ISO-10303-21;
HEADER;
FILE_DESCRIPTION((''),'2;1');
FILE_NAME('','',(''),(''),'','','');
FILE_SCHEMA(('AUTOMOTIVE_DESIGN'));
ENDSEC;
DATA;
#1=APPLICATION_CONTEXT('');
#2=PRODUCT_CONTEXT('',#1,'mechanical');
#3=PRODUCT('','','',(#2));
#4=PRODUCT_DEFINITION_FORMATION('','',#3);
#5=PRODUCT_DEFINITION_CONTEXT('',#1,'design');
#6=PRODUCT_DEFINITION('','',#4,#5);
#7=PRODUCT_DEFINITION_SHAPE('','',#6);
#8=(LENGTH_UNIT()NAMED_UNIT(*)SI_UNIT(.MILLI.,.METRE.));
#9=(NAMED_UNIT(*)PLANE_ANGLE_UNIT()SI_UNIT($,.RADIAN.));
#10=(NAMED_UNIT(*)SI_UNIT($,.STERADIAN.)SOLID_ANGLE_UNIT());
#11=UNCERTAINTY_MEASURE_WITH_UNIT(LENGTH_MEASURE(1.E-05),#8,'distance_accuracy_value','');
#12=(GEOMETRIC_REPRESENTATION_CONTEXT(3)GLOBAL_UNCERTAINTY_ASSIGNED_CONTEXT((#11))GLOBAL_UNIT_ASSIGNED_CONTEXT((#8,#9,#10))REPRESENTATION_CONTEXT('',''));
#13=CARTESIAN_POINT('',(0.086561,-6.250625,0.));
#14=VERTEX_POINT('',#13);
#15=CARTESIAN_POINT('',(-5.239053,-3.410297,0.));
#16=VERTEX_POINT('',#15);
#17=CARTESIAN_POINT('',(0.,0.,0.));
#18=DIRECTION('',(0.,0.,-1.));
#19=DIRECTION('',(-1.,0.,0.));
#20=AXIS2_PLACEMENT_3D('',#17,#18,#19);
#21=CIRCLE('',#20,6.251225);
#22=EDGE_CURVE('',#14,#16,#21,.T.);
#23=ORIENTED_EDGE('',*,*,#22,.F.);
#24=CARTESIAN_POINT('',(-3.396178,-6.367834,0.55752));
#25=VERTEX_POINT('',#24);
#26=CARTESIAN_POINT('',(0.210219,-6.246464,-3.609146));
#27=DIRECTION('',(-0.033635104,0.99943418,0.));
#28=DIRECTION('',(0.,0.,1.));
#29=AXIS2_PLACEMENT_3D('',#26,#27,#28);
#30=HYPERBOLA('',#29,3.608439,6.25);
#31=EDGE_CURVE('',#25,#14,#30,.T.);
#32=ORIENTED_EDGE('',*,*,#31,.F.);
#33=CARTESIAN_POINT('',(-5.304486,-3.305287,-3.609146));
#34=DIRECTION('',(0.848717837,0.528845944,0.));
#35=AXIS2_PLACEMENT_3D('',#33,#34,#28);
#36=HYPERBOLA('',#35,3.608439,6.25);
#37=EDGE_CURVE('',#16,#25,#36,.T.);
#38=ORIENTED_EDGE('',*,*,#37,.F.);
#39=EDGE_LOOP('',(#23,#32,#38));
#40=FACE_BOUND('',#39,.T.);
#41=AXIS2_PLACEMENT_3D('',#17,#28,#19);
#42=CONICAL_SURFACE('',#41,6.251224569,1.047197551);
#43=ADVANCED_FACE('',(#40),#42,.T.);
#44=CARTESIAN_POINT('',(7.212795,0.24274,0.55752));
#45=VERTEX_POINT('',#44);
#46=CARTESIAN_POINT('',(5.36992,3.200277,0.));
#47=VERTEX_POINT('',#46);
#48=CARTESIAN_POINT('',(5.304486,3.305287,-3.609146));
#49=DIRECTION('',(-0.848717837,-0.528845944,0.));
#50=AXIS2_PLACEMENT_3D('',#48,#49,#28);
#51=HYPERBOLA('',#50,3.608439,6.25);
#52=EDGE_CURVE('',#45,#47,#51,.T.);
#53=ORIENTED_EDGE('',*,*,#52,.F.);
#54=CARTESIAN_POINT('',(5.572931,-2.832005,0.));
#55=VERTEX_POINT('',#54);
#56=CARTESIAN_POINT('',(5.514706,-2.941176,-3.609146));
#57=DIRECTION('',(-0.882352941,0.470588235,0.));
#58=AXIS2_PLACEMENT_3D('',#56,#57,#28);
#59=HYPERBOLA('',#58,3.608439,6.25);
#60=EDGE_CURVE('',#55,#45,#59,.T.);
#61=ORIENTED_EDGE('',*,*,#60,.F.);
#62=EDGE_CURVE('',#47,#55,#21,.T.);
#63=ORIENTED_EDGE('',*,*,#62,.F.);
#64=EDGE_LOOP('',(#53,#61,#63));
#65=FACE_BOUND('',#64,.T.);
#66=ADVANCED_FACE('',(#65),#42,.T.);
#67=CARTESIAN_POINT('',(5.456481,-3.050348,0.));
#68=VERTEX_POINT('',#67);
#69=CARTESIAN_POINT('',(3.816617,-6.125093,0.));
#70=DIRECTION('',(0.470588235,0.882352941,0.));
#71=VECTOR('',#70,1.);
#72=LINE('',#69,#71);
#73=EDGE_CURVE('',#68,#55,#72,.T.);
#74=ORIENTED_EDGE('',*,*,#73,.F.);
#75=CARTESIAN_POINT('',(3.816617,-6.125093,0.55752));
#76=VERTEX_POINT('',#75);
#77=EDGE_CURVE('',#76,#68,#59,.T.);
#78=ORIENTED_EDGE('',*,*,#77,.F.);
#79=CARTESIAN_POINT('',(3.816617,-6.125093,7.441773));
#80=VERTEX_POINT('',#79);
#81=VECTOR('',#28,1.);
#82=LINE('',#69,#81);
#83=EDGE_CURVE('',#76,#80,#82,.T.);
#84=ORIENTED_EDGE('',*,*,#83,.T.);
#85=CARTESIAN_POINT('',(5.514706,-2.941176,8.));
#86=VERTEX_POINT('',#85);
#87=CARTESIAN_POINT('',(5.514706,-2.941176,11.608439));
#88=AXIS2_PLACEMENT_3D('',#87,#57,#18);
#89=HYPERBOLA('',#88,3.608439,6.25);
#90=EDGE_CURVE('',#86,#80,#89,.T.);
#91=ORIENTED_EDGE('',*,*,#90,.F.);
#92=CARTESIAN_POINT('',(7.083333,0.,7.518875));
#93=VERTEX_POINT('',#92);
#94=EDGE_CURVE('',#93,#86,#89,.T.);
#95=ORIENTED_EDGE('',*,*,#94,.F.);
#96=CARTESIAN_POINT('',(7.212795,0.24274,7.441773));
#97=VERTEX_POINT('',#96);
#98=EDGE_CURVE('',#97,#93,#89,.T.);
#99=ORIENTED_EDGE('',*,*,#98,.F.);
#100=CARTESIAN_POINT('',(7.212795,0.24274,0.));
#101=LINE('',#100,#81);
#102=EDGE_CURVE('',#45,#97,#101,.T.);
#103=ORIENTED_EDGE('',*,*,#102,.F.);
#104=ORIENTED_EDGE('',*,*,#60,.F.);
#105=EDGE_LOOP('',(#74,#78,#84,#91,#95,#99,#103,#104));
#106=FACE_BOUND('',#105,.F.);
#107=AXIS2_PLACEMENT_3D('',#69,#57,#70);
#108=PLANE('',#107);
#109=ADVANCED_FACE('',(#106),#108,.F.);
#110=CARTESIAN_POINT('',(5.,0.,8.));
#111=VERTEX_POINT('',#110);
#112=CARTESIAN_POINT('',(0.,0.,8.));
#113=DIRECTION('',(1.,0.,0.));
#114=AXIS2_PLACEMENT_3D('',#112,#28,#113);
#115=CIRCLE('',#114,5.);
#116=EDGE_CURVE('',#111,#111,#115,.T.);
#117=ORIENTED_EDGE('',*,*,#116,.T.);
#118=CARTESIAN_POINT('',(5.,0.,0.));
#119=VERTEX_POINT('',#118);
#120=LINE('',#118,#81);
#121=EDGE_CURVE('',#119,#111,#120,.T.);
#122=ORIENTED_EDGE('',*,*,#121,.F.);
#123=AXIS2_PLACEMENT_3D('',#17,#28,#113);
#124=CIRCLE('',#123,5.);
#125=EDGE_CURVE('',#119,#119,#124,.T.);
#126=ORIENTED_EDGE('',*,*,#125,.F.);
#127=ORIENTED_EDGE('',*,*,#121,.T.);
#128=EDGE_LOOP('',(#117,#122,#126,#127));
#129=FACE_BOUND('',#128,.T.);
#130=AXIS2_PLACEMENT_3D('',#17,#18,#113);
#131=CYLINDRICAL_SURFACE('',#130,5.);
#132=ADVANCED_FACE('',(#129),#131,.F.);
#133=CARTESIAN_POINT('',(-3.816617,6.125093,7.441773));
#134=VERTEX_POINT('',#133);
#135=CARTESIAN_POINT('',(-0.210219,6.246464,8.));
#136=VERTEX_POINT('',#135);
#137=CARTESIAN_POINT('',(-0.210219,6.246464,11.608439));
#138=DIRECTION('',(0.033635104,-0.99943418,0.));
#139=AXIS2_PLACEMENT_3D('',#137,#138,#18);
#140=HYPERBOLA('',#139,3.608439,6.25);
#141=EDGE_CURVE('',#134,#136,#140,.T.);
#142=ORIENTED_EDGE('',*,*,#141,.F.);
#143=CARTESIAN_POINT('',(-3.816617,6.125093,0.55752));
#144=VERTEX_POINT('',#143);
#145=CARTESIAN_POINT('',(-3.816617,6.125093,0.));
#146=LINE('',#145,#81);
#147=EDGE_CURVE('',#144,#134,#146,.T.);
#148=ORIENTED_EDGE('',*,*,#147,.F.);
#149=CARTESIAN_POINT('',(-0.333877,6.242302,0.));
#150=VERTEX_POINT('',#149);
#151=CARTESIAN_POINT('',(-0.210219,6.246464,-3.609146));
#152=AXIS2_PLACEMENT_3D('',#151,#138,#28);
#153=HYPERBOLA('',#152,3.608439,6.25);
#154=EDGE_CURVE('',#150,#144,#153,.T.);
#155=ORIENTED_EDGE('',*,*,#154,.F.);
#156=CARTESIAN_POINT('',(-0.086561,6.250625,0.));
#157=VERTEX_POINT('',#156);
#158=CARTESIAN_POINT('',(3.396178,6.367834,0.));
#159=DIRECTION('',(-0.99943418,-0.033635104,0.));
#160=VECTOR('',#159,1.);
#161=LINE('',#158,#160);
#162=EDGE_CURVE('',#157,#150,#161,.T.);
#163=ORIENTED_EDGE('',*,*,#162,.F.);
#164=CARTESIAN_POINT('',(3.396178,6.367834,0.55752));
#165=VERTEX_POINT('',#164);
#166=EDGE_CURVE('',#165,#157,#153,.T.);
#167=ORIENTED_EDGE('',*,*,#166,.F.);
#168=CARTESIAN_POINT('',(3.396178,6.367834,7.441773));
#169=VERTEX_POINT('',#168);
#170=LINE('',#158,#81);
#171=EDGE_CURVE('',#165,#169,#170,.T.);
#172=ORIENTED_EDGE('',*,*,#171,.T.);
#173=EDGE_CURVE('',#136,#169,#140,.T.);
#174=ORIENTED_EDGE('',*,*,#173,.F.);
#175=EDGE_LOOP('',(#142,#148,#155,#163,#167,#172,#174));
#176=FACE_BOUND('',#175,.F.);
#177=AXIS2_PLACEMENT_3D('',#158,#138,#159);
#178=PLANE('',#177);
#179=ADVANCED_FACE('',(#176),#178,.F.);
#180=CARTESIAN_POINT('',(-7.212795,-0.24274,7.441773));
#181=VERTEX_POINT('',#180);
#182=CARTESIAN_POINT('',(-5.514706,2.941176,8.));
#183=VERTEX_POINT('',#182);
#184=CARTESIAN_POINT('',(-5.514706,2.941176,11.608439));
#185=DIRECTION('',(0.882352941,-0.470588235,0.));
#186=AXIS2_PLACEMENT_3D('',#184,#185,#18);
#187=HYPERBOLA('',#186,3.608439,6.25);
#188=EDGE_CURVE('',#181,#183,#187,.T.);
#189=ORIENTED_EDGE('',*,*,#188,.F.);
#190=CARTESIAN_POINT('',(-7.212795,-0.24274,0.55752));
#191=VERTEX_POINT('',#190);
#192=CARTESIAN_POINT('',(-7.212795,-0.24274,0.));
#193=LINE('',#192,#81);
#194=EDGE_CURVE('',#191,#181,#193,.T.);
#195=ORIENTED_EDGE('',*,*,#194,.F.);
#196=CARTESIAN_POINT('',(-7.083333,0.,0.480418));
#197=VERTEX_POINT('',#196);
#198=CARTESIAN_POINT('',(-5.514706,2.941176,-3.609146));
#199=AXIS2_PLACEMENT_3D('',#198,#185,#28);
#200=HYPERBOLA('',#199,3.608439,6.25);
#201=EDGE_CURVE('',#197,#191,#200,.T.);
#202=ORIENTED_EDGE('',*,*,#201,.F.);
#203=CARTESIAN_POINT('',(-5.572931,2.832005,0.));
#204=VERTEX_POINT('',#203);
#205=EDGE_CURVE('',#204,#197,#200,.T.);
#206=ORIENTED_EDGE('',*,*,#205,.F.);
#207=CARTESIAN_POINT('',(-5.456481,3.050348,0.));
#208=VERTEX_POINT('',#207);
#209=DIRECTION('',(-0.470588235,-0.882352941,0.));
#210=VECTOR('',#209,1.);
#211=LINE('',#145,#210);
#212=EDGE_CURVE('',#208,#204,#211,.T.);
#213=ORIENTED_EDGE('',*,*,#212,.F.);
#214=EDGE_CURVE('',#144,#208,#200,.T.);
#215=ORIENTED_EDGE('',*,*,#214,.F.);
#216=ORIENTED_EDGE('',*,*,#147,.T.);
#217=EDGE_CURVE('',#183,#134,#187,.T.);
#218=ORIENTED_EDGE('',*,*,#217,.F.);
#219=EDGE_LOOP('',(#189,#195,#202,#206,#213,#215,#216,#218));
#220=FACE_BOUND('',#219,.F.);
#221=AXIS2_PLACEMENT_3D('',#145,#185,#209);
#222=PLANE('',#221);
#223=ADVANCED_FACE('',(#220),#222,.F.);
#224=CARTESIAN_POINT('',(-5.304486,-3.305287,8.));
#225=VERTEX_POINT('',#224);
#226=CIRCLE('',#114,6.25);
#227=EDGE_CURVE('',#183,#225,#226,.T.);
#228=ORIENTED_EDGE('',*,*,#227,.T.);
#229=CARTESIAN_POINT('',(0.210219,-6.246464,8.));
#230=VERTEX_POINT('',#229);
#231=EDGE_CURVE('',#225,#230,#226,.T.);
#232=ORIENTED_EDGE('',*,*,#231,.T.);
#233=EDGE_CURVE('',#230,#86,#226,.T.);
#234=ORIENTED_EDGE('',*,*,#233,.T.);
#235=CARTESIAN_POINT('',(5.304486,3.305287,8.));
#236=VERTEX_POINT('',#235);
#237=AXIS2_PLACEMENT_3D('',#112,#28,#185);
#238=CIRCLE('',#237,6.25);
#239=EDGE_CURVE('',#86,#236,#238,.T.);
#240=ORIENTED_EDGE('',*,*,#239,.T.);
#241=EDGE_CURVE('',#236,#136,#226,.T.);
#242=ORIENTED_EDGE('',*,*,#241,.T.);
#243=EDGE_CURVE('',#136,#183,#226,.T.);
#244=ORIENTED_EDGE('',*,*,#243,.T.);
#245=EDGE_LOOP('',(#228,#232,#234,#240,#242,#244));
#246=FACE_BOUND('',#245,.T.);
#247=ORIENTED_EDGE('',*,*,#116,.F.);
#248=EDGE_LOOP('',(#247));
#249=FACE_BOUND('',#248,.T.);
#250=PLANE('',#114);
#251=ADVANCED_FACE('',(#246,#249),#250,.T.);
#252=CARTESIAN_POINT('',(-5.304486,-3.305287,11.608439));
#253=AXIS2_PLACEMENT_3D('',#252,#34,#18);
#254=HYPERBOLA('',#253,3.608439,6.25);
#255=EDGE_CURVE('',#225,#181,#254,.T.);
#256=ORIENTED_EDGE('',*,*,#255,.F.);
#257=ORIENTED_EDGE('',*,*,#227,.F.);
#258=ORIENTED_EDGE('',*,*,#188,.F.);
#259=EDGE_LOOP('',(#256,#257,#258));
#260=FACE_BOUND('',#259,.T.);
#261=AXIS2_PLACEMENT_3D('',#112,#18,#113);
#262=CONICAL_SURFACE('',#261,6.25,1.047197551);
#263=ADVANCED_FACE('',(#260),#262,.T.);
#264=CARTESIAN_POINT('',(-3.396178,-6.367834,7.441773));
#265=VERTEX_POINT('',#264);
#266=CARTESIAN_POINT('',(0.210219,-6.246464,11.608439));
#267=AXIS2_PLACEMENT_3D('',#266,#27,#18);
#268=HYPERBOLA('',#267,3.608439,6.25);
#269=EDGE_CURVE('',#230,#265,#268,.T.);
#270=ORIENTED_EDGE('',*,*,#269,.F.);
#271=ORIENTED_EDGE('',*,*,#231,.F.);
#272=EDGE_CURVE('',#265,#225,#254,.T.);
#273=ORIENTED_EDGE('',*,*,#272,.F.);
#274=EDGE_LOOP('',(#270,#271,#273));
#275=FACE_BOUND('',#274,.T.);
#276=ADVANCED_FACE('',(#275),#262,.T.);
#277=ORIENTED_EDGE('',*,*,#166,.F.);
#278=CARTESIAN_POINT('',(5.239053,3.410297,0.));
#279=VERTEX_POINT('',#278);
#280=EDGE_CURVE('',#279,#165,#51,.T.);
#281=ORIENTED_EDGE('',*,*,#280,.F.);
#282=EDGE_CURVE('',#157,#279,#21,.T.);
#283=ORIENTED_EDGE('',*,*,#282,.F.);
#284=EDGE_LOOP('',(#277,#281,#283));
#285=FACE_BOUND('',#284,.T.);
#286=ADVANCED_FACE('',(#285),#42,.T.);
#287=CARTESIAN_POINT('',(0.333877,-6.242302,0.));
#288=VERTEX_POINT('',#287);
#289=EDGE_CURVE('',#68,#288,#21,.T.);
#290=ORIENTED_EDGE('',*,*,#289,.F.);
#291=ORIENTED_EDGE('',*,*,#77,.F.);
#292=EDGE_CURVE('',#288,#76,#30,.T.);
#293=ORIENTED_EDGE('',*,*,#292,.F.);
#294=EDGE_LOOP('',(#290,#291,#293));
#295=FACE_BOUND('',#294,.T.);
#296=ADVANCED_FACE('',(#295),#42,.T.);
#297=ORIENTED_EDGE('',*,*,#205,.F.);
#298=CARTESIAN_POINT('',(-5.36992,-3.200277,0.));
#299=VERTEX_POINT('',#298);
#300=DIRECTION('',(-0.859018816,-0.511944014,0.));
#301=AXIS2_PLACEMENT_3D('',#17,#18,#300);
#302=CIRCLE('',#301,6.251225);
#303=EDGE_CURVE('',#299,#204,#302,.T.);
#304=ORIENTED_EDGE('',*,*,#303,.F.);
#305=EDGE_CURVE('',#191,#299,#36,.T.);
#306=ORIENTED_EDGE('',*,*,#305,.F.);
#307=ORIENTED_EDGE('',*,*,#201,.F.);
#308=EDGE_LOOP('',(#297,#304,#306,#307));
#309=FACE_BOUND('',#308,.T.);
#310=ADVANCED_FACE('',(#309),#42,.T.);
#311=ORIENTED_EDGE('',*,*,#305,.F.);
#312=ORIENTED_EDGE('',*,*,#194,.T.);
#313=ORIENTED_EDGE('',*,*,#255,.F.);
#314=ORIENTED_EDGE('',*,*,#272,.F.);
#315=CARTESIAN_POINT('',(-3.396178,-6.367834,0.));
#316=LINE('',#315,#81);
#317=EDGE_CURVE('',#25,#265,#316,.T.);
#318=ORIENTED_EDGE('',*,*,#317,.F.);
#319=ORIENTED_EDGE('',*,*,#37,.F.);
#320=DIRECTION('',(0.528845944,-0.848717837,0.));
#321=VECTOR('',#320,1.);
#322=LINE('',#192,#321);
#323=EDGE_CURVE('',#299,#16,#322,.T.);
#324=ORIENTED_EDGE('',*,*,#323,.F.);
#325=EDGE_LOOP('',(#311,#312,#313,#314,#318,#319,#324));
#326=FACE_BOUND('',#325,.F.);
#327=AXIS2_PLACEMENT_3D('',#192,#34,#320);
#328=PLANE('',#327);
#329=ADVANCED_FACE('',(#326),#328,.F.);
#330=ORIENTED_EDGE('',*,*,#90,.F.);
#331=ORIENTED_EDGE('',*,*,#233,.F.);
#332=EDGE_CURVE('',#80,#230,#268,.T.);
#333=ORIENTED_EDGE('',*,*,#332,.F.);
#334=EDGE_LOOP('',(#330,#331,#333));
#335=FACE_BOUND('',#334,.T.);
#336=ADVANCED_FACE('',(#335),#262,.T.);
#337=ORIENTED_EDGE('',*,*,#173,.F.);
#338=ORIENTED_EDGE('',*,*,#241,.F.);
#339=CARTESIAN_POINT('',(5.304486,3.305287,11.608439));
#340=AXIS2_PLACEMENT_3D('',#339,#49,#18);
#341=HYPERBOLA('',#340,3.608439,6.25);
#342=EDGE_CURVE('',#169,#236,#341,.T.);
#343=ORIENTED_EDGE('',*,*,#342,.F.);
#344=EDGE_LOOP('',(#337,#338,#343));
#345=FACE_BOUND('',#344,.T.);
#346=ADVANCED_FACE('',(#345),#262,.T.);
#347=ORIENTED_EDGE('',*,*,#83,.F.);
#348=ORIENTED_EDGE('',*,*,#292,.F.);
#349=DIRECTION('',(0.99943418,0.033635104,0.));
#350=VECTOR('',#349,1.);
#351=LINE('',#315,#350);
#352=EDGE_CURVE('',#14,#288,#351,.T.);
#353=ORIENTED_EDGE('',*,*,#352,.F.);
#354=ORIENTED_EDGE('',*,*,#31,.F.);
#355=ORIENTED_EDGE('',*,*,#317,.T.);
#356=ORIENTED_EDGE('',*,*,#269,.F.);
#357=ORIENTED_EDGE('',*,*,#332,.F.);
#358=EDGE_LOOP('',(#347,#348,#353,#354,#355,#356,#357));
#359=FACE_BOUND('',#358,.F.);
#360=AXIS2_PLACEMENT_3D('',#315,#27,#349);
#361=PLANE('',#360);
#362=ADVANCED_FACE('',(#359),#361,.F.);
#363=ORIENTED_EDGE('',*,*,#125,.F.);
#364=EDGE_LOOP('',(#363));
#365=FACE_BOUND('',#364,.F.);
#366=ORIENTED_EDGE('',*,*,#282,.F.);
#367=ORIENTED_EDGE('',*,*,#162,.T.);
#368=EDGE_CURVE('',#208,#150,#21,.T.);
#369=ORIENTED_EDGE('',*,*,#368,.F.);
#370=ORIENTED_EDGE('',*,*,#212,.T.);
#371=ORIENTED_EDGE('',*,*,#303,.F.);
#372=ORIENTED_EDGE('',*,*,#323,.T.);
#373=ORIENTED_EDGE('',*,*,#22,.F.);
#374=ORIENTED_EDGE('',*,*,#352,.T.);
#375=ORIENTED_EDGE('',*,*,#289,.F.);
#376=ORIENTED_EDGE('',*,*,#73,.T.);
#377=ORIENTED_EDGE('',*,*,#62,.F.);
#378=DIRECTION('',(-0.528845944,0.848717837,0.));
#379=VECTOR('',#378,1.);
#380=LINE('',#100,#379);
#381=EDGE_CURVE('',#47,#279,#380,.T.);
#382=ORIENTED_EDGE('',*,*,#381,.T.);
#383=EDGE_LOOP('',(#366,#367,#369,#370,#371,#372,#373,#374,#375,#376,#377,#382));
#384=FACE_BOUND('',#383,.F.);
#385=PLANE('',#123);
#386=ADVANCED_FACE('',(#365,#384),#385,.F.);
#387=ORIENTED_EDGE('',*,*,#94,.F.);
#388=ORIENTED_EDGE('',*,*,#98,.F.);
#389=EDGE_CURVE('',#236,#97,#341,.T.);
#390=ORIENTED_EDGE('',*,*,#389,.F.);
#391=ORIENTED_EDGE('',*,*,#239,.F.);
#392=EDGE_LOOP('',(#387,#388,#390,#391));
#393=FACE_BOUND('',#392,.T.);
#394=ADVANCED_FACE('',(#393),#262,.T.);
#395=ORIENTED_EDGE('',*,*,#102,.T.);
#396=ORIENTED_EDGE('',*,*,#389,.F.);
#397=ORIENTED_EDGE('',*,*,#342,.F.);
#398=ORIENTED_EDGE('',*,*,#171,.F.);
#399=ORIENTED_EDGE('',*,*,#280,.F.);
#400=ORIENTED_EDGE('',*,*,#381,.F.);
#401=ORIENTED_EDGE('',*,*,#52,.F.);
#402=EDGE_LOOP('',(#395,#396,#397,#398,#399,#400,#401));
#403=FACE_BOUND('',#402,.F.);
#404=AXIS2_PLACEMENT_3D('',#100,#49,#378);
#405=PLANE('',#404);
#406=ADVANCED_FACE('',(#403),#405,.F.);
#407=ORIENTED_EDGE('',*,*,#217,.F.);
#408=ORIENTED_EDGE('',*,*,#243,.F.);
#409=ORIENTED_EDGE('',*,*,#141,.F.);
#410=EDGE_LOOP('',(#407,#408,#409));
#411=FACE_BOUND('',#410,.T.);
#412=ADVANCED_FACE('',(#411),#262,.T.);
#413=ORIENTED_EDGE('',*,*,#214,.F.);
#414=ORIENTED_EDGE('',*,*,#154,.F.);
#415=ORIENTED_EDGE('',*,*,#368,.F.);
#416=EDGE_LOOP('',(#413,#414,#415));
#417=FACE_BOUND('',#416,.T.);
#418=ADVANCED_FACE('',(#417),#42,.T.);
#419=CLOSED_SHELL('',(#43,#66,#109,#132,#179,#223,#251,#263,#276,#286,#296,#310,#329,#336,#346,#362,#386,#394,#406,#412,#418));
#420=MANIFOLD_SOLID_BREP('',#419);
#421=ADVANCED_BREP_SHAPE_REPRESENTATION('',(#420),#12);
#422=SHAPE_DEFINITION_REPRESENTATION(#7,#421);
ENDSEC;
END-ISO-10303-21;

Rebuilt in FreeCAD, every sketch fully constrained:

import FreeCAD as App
import Part
import Sketcher

V = App.Vector


def faces_at(feature, points):
    """Names of the faces that lie closest to the given points."""
    faces = feature.Shape.Faces
    near = lambda p: min(range(len(faces)), key=lambda i: faces[i].distToShape(Part.Vertex(*p))[0])
    return sorted({f"Face{near(p) + 1}" for p in points})

doc = App.newDocument("Part")
body = doc.addObject("PartDesign::Body", "Body")

# Sketch on XY plane
sketch1 = body.newObject("Sketcher::SketchObject", "Sketch")
sketch1.AttachmentSupport = (doc.getObject("XY_Plane"), [""])
sketch1.MapMode = "FlatFace"
sketch1.addGeometry([
    Part.LineSegment(V(3.396178, 6.367834, 0), V(-3.816617, 6.125093, 0)),  # 0
    Part.LineSegment(V(-3.816617, 6.125093, 0), V(-7.212795, -0.24274, 0)),  # 1
    Part.LineSegment(V(-7.212795, -0.24274, 0), V(-3.396178, -6.367834, 0)),  # 2
    Part.LineSegment(V(-3.396178, -6.367834, 0), V(3.816617, -6.125093, 0)),  # 3
    Part.LineSegment(V(3.816617, -6.125093, 0), V(7.212795, 0.24274, 0)),  # 4
    Part.LineSegment(V(7.212795, 0.24274, 0), V(3.396178, 6.367834, 0)),  # 5
    Part.Circle(V(0, 0, 0), V(0, 0, 1), 5),  # 6
], False)
sketch1.addConstraint([
    Sketcher.Constraint("Coincident", 0, 2, 1, 1),
    Sketcher.Constraint("Coincident", 1, 2, 2, 1),
    Sketcher.Constraint("Coincident", 2, 2, 3, 1),
    Sketcher.Constraint("Coincident", 3, 2, 4, 1),
    Sketcher.Constraint("Coincident", 4, 2, 5, 1),
    Sketcher.Constraint("Coincident", 5, 2, 0, 1),
    Sketcher.Constraint("Coincident", 6, 3, -1, 1),
    Sketcher.Constraint("Symmetric", 0, 2, 3, 2, -1, 1),
    Sketcher.Constraint("Symmetric", 1, 2, 4, 2, -1, 1),
    Sketcher.Constraint("Symmetric", 2, 2, 5, 2, -1, 1),
    Sketcher.Constraint("Equal", 0, 1),
    Sketcher.Constraint("Equal", 1, 2),
    Sketcher.Constraint("Diameter", 6, 10.0),
    Sketcher.Constraint("Distance", 0, 7.216878),
    Sketcher.Constraint("DistanceY", 1, 2, -1, 1, 0.24274),
    Sketcher.Constraint("DistanceX", 2, 2, -1, 1, 3.396178),
    Sketcher.Constraint("DistanceX", 1, 2, 0, 2, 3.396178),
])
pad1 = body.newObject("PartDesign::Pad", "Pad")
pad1.Profile = sketch1
pad1.Length = 8
body2 = doc.addObject("PartDesign::Body", "Body001")

# Sketch on XY plane
sketch2 = body2.newObject("Sketcher::SketchObject", "Sketch001")
sketch2.AttachmentSupport = (doc.getObject("XY_Plane001"), [""])
sketch2.MapMode = "FlatFace"
sketch2.AttachmentOffset = App.Placement(V(0, 0, 8), App.Rotation())
sketch2.addGeometry([
    Part.LineSegment(V(-33.702, 32.857, 0), V(-33.702, -32.857, 0)),  # 0
    Part.LineSegment(V(-33.702, -32.857, 0), V(33.702, -32.857, 0)),  # 1
    Part.LineSegment(V(33.702, -32.857, 0), V(33.702, 32.857, 0)),  # 2
    Part.LineSegment(V(33.702, 32.857, 0), V(-33.702, 32.857, 0)),  # 3
    Part.Circle(V(0, 0, 0), V(0, 0, 1), 6.25),  # 4
], False)
sketch2.addConstraint([
    Sketcher.Constraint("Coincident", 0, 2, 1, 1),
    Sketcher.Constraint("Coincident", 1, 2, 2, 1),
    Sketcher.Constraint("Coincident", 2, 2, 3, 1),
    Sketcher.Constraint("Coincident", 3, 2, 0, 1),
    Sketcher.Constraint("Vertical", 0),
    Sketcher.Constraint("Horizontal", 1),
    Sketcher.Constraint("Vertical", 2),
    Sketcher.Constraint("Horizontal", 3),
    Sketcher.Constraint("Coincident", 4, 3, -1, 1),
    Sketcher.Constraint("Symmetric", 0, 2, 2, 2, -1, 1),
    Sketcher.Constraint("Diameter", 4, 12.5),
    Sketcher.Constraint("DistanceX", 1, 1, 1, 2, 67.404),
    Sketcher.Constraint("DistanceY", 0, 2, 0, 1, 65.714),
])
pad2 = body2.newObject("PartDesign::Pad", "Pad001")
pad2.Profile = sketch2
pad2.Length = 13.512942
pad2.Reversed = True
doc.recompute()

datumplane = body2.newObject("PartDesign::Plane", "DatumPlane")
datumplane.AttachmentSupport = (doc.getObject("XY_Plane001"), [""])
datumplane.MapMode = "FlatFace"
datumplane.AttachmentOffset = App.Placement(V(0, 0, 8), App.Rotation())
draft = body2.newObject("PartDesign::Draft", "Draft")
draft.Base = (pad2, faces_at(pad2, [
    (0, -32.857, 1.244),
    (33.702, 0, 1.244),
    (0, 32.857, 1.244),
    (-33.702, 0, 1.244),
    (-6.25, 0, 1.244),
]))
draft.NeutralPlane = (datumplane, [""])
draft.Angle = 60
draft.Reversed = True
doc.recompute()

boolean = body.newObject("PartDesign::Boolean", "Boolean")
boolean.Type = "Cut"
boolean.addObjects([body2])
body3 = doc.addObject("PartDesign::Body", "Body002")

# Sketch on XY plane
sketch3 = body3.newObject("Sketcher::SketchObject", "Sketch002")
sketch3.AttachmentSupport = (doc.getObject("XY_Plane002"), [""])
sketch3.MapMode = "FlatFace"
sketch3.addGeometry([
    Part.LineSegment(V(33.702, 32.857, 0), V(33.702, -32.857, 0)),  # 0
    Part.LineSegment(V(33.702, -32.857, 0), V(-33.702, -32.857, 0)),  # 1
    Part.LineSegment(V(-33.702, -32.857, 0), V(-33.702, 32.857, 0)),  # 2
    Part.LineSegment(V(-33.702, 32.857, 0), V(33.702, 32.857, 0)),  # 3
    Part.Circle(V(0, 0, 0), V(0, 0, 1), 6.251225),  # 4
], False)
sketch3.addConstraint([
    Sketcher.Constraint("Coincident", 0, 2, 1, 1),
    Sketcher.Constraint("Coincident", 1, 2, 2, 1),
    Sketcher.Constraint("Coincident", 2, 2, 3, 1),
    Sketcher.Constraint("Coincident", 3, 2, 0, 1),
    Sketcher.Constraint("Vertical", 0),
    Sketcher.Constraint("Horizontal", 1),
    Sketcher.Constraint("Vertical", 2),
    Sketcher.Constraint("Horizontal", 3),
    Sketcher.Constraint("Coincident", 4, 3, -1, 1),
    Sketcher.Constraint("Symmetric", 0, 2, 2, 2, -1, 1),
    Sketcher.Constraint("Diameter", 4, 12.502449),
    Sketcher.Constraint("DistanceX", 1, 2, 1, 1, 67.404),
    Sketcher.Constraint("DistanceY", 0, 2, 0, 1, 65.714),
])
pad3 = body3.newObject("PartDesign::Pad", "Pad002")
pad3.Profile = sketch3
pad3.Length = 13.512942
doc.recompute()

draft2 = body3.newObject("PartDesign::Draft", "Draft001")
draft2.Base = (pad3, faces_at(pad3, [
    (0, -32.857, 6.756),
    (-33.702, 0, 6.756),
    (0, 32.857, 6.756),
    (33.702, 0, 6.756),
    (6.251, 0, 6.756),
]))
draft2.NeutralPlane = (doc.getObject("XY_Plane002"), [""])
draft2.Angle = 60
draft2.Reversed = False
doc.recompute()

boolean2 = body.newObject("PartDesign::Boolean", "Boolean001")
boolean2.Type = "Cut"
boolean2.addObjects([body3])

doc.recompute()
